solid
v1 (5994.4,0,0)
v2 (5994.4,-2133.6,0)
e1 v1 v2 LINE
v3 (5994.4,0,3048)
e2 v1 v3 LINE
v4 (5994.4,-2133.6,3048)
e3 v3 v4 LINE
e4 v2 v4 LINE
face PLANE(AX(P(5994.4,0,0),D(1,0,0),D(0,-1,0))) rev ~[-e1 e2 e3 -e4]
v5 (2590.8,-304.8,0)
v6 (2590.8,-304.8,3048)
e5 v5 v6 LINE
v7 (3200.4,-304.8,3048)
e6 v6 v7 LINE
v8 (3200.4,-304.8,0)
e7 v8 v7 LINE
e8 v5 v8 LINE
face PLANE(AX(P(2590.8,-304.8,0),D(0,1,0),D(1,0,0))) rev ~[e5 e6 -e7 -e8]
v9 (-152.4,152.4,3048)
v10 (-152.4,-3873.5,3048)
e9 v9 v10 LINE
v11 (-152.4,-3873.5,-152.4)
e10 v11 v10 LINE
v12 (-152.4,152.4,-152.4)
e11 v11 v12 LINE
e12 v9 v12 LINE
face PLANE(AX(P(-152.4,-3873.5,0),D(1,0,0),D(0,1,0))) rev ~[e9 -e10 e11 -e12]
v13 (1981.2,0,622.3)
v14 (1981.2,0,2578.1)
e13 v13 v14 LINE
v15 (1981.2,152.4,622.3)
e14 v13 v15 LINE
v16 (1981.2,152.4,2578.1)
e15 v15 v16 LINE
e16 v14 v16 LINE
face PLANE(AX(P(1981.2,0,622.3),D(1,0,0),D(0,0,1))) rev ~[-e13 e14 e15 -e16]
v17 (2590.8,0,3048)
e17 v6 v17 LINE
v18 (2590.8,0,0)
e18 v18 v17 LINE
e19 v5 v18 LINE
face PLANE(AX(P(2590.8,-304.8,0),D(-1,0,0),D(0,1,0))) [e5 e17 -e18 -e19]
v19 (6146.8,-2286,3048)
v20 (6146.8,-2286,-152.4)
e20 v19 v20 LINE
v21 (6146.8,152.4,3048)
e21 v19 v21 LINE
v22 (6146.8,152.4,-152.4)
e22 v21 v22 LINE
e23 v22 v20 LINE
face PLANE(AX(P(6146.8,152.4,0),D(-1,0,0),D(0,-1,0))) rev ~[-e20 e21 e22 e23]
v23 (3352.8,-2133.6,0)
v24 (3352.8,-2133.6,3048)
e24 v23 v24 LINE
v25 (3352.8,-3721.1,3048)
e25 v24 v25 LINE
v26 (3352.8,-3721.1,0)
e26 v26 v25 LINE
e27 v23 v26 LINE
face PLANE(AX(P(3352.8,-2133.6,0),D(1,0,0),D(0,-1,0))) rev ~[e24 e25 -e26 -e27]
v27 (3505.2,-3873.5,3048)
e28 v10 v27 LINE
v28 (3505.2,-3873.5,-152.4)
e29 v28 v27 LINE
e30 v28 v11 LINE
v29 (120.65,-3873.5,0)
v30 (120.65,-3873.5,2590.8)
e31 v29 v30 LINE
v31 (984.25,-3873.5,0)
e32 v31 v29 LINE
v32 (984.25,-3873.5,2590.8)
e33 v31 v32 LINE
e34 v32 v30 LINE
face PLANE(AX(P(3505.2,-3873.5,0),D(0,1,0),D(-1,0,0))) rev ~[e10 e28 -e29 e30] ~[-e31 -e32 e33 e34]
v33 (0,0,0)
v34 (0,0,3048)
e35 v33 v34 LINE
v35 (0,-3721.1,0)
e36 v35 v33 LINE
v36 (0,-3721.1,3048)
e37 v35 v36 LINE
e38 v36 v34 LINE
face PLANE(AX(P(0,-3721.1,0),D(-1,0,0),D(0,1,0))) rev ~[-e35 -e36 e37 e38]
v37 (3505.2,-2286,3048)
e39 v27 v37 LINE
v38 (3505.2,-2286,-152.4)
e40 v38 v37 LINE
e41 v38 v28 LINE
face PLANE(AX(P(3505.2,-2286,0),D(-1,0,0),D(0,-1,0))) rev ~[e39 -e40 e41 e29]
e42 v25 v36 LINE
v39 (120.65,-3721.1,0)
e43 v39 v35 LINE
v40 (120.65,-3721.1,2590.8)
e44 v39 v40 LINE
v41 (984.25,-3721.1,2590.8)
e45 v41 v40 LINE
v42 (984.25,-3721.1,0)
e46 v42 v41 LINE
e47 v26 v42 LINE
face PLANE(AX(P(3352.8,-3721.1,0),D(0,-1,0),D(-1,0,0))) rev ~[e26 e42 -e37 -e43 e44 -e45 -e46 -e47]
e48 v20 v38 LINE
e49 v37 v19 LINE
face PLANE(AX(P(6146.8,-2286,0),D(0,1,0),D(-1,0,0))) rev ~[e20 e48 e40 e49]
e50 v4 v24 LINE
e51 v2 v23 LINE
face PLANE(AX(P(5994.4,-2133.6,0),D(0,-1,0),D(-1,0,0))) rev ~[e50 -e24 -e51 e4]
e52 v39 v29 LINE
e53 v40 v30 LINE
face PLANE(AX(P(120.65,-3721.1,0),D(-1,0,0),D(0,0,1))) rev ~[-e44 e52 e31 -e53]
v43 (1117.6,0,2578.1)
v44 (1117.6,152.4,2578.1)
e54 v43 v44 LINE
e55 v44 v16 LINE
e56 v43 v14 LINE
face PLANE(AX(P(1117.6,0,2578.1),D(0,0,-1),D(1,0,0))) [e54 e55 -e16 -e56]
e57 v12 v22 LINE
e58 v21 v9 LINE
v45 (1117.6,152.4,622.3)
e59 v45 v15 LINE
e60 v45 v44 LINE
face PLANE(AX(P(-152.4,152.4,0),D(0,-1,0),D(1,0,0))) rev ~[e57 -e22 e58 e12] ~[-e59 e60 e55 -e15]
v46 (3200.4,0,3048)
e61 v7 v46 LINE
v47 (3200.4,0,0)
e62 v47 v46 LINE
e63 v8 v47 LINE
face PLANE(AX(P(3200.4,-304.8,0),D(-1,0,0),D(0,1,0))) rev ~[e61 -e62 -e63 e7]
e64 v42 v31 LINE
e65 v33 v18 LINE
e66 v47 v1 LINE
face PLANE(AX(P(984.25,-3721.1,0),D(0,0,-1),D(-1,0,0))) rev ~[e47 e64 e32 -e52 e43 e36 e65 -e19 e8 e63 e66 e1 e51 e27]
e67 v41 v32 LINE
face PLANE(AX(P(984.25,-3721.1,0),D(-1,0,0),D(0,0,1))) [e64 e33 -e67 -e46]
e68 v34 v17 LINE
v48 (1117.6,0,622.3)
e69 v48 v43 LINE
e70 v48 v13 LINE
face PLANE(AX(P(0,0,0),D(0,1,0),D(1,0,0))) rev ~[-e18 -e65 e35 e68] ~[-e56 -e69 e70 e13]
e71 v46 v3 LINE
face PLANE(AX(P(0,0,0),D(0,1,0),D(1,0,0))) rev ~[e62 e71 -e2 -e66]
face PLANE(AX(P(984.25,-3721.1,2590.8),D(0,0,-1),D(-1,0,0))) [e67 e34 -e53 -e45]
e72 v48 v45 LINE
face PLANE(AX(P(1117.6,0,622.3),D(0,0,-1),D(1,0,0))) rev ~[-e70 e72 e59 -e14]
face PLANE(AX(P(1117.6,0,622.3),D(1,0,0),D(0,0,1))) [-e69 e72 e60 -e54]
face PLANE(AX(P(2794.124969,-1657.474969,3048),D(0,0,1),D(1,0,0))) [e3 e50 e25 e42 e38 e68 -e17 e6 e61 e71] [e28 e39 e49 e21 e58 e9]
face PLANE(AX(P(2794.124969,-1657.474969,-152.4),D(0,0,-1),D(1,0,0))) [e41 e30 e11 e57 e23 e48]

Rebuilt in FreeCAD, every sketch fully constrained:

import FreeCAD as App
import Part
import Sketcher

V = App.Vector
Q = App.Units.Quantity

doc = App.newDocument("Part")
params = doc.addObject("Spreadsheet::Sheet", "Params")
for row, (alias, value) in enumerate([
    ("sketch1_width", "248 in"),
    ("sketch1_width2", "144 in"),
    ("sketch1_width3", "132 in"),
    ("sketch1_height", "96 in"),
    ("sketch1_height2", "84 in"),
    ("pad1_length", "120 in"),
    ("sketch2_width", "248 in"),
    ("sketch2_width2", "104 in"),
    ("sketch2_height", "96 in"),
    ("sketch2_height2", "158.5 in"),
    ("pad2_length", "6 in"),
    ("sketch3_width", "34 in"),
    ("sketch3_height", "102 in"),
    ("sketch4_width", "34 in"),
    ("sketch4_height", "77 in"),
    ("sketch5_width", "24 in"),
    ("sketch5_height", "12 in"),
    ("pad3_length", "120 in"),
], start=1):
    params.set(f"A{row}", alias)
    params.set(f"B{row}", "=" + value)
    params.setAlias(f"B{row}", alias)

body = doc.addObject("PartDesign::Body", "Body")

sketch1 = doc.addObject("Sketcher::SketchObject", "Sketch")
body.addObject(sketch1)
sketch1.AttachmentSupport = (doc.XY_Plane, [""])
sketch1.MapMode = "FlatFace"
sketch1.addGeometry(Part.LineSegment(V(6146.8, -2286, 0), V(6146.8, 152.4, 0)), False)
sketch1.addGeometry(Part.LineSegment(V(6146.8, 152.4, 0), V(-152.4, 152.4, 0)), False)
sketch1.addGeometry(Part.LineSegment(V(-152.4, 152.4, 0), V(-152.4, -3873.5, 0)), False)
sketch1.addGeometry(Part.LineSegment(V(-152.4, -3873.5, 0), V(3505.2, -3873.5, 0)), False)
sketch1.addGeometry(Part.LineSegment(V(3505.2, -3873.5, 0), V(3505.2, -2286, 0)), False)
sketch1.addGeometry(Part.LineSegment(V(3505.2, -2286, 0), V(6146.8, -2286, 0)), False)
sketch1.addGeometry(Part.LineSegment(V(3352.8, -3721.1, 0), V(0, -3721.1, 0)), False)
sketch1.addGeometry(Part.LineSegment(V(0, -3721.1, 0), V(0, 0, 0)), False)
sketch1.addGeometry(Part.LineSegment(V(0, 0, 0), V(5994.4, 0, 0)), False)
sketch1.addGeometry(Part.LineSegment(V(5994.4, 0, 0), V(5994.4, -2133.6, 0)), False)
sketch1.addGeometry(Part.LineSegment(V(5994.4, -2133.6, 0), V(3352.8, -2133.6, 0)), False)
sketch1.addGeometry(Part.LineSegment(V(3352.8, -2133.6, 0), V(3352.8, -3721.1, 0)), False)
sketch1.addConstraint(Sketcher.Constraint("Coincident", 0, 2, 1, 1))
sketch1.addConstraint(Sketcher.Constraint("Coincident", 1, 2, 2, 1))
sketch1.addConstraint(Sketcher.Constraint("Coincident", 2, 2, 3, 1))
sketch1.addConstraint(Sketcher.Constraint("Coincident", 3, 2, 4, 1))
sketch1.addConstraint(Sketcher.Constraint("Coincident", 4, 2, 5, 1))
sketch1.addConstraint(Sketcher.Constraint("Coincident", 5, 2, 0, 1))
sketch1.addConstraint(Sketcher.Constraint("Coincident", 6, 2, 7, 1))
sketch1.addConstraint(Sketcher.Constraint("Coincident", 7, 2, 8, 1))
sketch1.addConstraint(Sketcher.Constraint("Coincident", 8, 2, 9, 1))
sketch1.addConstraint(Sketcher.Constraint("Coincident", 9, 2, 10, 1))
sketch1.addConstraint(Sketcher.Constraint("Coincident", 10, 2, 11, 1))
sketch1.addConstraint(Sketcher.Constraint("Coincident", 11, 2, 6, 1))
sketch1.addConstraint(Sketcher.Constraint("Vertical", 0))
sketch1.addConstraint(Sketcher.Constraint("Horizontal", 1))
sketch1.addConstraint(Sketcher.Constraint("Vertical", 2))
sketch1.addConstraint(Sketcher.Constraint("Horizontal", 3))
sketch1.addConstraint(Sketcher.Constraint("Vertical", 4))
sketch1.addConstraint(Sketcher.Constraint("Horizontal", 5))
sketch1.addConstraint(Sketcher.Constraint("Horizontal", 6))
sketch1.addConstraint(Sketcher.Constraint("Vertical", 7))
sketch1.addConstraint(Sketcher.Constraint("Horizontal", 8))
sketch1.addConstraint(Sketcher.Constraint("Vertical", 9))
sketch1.addConstraint(Sketcher.Constraint("Horizontal", 10))
sketch1.addConstraint(Sketcher.Constraint("Vertical", 11))
sketch1.addConstraint(Sketcher.Constraint("Coincident", 7, 2, -1, 1))
sketch1.addConstraint(Sketcher.Constraint("Equal", 5, 10))
sketch1.addConstraint(Sketcher.Constraint("Equal", 4, 11))
sketch1.addConstraint(Sketcher.Constraint("DistanceX", 1, 2, 1, 1, Q("248 in")))
sketch1.addConstraint(Sketcher.Constraint("DistanceX", 3, 1, 3, 2, Q("144 in")))
sketch1.addConstraint(Sketcher.Constraint("DistanceX", 6, 2, 6, 1, Q("132 in")))
sketch1.addConstraint(Sketcher.Constraint("DistanceY", 0, 1, 0, 2, Q("96 in")))
sketch1.addConstraint(Sketcher.Constraint("DistanceY", 9, 2, 9, 1, Q("84 in")))
sketch1.addConstraint(Sketcher.Constraint("DistanceY", 2, 2, 2, 1, Q("158.5 in")))
sketch1.addConstraint(Sketcher.Constraint("DistanceX", -1, 1, 0, 2, Q("242 in")))
sketch1.addConstraint(Sketcher.Constraint("DistanceY", -1, 1, 0, 2, Q("6 in")))
sketch1.setExpression("Constraints[27]", "Params.sketch1_width")
sketch1.setExpression("Constraints[28]", "Params.sketch1_width2")
sketch1.setExpression("Constraints[29]", "Params.sketch1_width3")
sketch1.setExpression("Constraints[30]", "Params.sketch1_height")
sketch1.setExpression("Constraints[31]", "Params.sketch1_height2")
pad1 = doc.addObject("PartDesign::Pad", "Pad")
body.addObject(pad1)
pad1.Profile = sketch1
pad1.setExpression("Length", "Params.pad1_length")

sketch2 = doc.addObject("Sketcher::SketchObject", "Sketch001")
body.addObject(sketch2)
sketch2.AttachmentSupport = (doc.XY_Plane, [""])
sketch2.MapMode = "FlatFace"
sketch2.addGeometry(Part.LineSegment(V(-152.4, -3873.5, 0), V(-152.4, 152.4, 0)), False)
sketch2.addGeometry(Part.LineSegment(V(-152.4, 152.4, 0), V(6146.8, 152.4, 0)), False)
sketch2.addGeometry(Part.LineSegment(V(6146.8, 152.4, 0), V(6146.8, -2286, 0)), False)
sketch2.addGeometry(Part.LineSegment(V(6146.8, -2286, 0), V(3505.2, -2286, 0)), False)
sketch2.addGeometry(Part.LineSegment(V(3505.2, -2286, 0), V(3505.2, -3873.5, 0)), False)
sketch2.addGeometry(Part.LineSegment(V(3505.2, -3873.5, 0), V(-152.4, -3873.5, 0)), False)
sketch2.addConstraint(Sketcher.Constraint("Coincident", 0, 2, 1, 1))
sketch2.addConstraint(Sketcher.Constraint("Coincident", 1, 2, 2, 1))
sketch2.addConstraint(Sketcher.Constraint("Coincident", 2, 2, 3, 1))
sketch2.addConstraint(Sketcher.Constraint("Coincident", 3, 2, 4, 1))
sketch2.addConstraint(Sketcher.Constraint("Coincident", 4, 2, 5, 1))
sketch2.addConstraint(Sketcher.Constraint("Coincident", 5, 2, 0, 1))
sketch2.addConstraint(Sketcher.Constraint("Vertical", 0))
sketch2.addConstraint(Sketcher.Constraint("Horizontal", 1))
sketch2.addConstraint(Sketcher.Constraint("Vertical", 2))
sketch2.addConstraint(Sketcher.Constraint("Horizontal", 3))
sketch2.addConstraint(Sketcher.Constraint("Vertical", 4))
sketch2.addConstraint(Sketcher.Constraint("Horizontal", 5))
sketch2.addConstraint(Sketcher.Constraint("DistanceX", 1, 1, 1, 2, Q("248 in")))
sketch2.addConstraint(Sketcher.Constraint("DistanceX", 3, 2, 3, 1, Q("104 in")))
sketch2.addConstraint(Sketcher.Constraint("DistanceY", 2, 2, 2, 1, Q("96 in")))
sketch2.addConstraint(Sketcher.Constraint("DistanceY", 0, 1, 0, 2, Q("158.5 in")))
sketch2.addConstraint(Sketcher.Constraint("DistanceX", 0, 2, -1, 1, Q("6 in")))
sketch2.addConstraint(Sketcher.Constraint("DistanceY", -1, 1, 0, 2, Q("6 in")))
sketch2.setExpression("Constraints[12]", "Params.sketch2_width")
sketch2.setExpression("Constraints[13]", "Params.sketch2_width2")
sketch2.setExpression("Constraints[14]", "Params.sketch2_height")
sketch2.setExpression("Constraints[15]", "Params.sketch2_height2")
pad2 = doc.addObject("PartDesign::Pad", "Pad001")
body.addObject(pad2)
pad2.Profile = sketch2
pad2.setExpression("Length", "Params.pad2_length")
pad2.Reversed = True

sketch3 = doc.addObject("Sketcher::SketchObject", "Sketch002")
body.addObject(sketch3)
sketch3.AttachmentSupport = (doc.XZ_Plane, [""])
sketch3.MapMode = "FlatFace"
sketch3.AttachmentOffset = App.Placement(V(0, 0, 146.5 * 25.4), App.Rotation())
sketch3.addGeometry(Part.LineSegment(V(984.25, 2590.8, 0), V(984.25, 0, 0)), False)
sketch3.addGeometry(Part.LineSegment(V(984.25, 0, 0), V(120.65, 0, 0)), False)
sketch3.addGeometry(Part.LineSegment(V(120.65, 0, 0), V(120.65, 2590.8, 0)), False)
sketch3.addGeometry(Part.LineSegment(V(120.65, 2590.8, 0), V(984.25, 2590.8, 0)), False)
sketch3.addConstraint(Sketcher.Constraint("Coincident", 0, 2, 1, 1))
sketch3.addConstraint(Sketcher.Constraint("Coincident", 1, 2, 2, 1))
sketch3.addConstraint(Sketcher.Constraint("Coincident", 2, 2, 3, 1))
sketch3.addConstraint(Sketcher.Constraint("Coincident", 3, 2, 0, 1))
sketch3.addConstraint(Sketcher.Constraint("Vertical", 0))
sketch3.addConstraint(Sketcher.Constraint("Horizontal", 1))
sketch3.addConstraint(Sketcher.Constraint("Vertical", 2))
sketch3.addConstraint(Sketcher.Constraint("Horizontal", 3))
sketch3.addConstraint(Sketcher.Constraint("PointOnObject", 0, 2, -1))
sketch3.addConstraint(Sketcher.Constraint("DistanceX", 1, 2, 1, 1, Q("34 in")))
sketch3.addConstraint(Sketcher.Constraint("DistanceY", 0, 2, 0, 1, Q("102 in")))
sketch3.addConstraint(Sketcher.Constraint("DistanceX", -1, 1, 0, 2, Q("38.75 in")))
sketch3.setExpression("Constraints[9]", "Params.sketch3_width")
sketch3.setExpression("Constraints[10]", "Params.sketch3_height")
pocket1 = doc.addObject("PartDesign::Pocket", "Pocket")
body.addObject(pocket1)
pocket1.Profile = sketch3
pocket1.Type = "ThroughAll"
pocket1.Reversed = True

sketch4 = doc.addObject("Sketcher::SketchObject", "Sketch003")
body.addObject(sketch4)
sketch4.AttachmentSupport = (doc.XZ_Plane, [""])
sketch4.MapMode = "FlatFace"
sketch4.addGeometry(Part.LineSegment(V(1117.6, 2578.1, 0), V(1117.6, 622.3, 0)), False)
sketch4.addGeometry(Part.LineSegment(V(1117.6, 622.3, 0), V(1981.2, 622.3, 0)), False)
sketch4.addGeometry(Part.LineSegment(V(1981.2, 622.3, 0), V(1981.2, 2578.1, 0)), False)
sketch4.addGeometry(Part.LineSegment(V(1981.2, 2578.1, 0), V(1117.6, 2578.1, 0)), False)
sketch4.addConstraint(Sketcher.Constraint("Coincident", 0, 2, 1, 1))
sketch4.addConstraint(Sketcher.Constraint("Coincident", 1, 2, 2, 1))
sketch4.addConstraint(Sketcher.Constraint("Coincident", 2, 2, 3, 1))
sketch4.addConstraint(Sketcher.Constraint("Coincident", 3, 2, 0, 1))
sketch4.addConstraint(Sketcher.Constraint("Vertical", 0))
sketch4.addConstraint(Sketcher.Constraint("Horizontal", 1))
sketch4.addConstraint(Sketcher.Constraint("Vertical", 2))
sketch4.addConstraint(Sketcher.Constraint("Horizontal", 3))
sketch4.addConstraint(Sketcher.Constraint("DistanceX", 1, 1, 1, 2, Q("34 in")))
sketch4.addConstraint(Sketcher.Constraint("DistanceY", 0, 2, 0, 1, Q("77 in")))
sketch4.addConstraint(Sketcher.Constraint("DistanceX", -1, 1, 0, 2, Q("44 in")))
sketch4.addConstraint(Sketcher.Constraint("DistanceY", -1, 1, 0, 2, Q("24.5 in")))
sketch4.setExpression("Constraints[8]", "Params.sketch4_width")
sketch4.setExpression("Constraints[9]", "Params.sketch4_height")
pocket2 = doc.addObject("PartDesign::Pocket", "Pocket001")
body.addObject(pocket2)
pocket2.Profile = sketch4
pocket2.Type = "ThroughAll"

sketch5 = doc.addObject("Sketcher::SketchObject", "Sketch004")
body.addObject(sketch5)
sketch5.AttachmentSupport = (doc.XY_Plane, [""])
sketch5.MapMode = "FlatFace"
sketch5.addGeometry(Part.LineSegment(V(2590.8, 0, 0), V(2590.8, -304.8, 0)), False)
sketch5.addGeometry(Part.LineSegment(V(2590.8, -304.8, 0), V(3200.4, -304.8, 0)), False)
sketch5.addGeometry(Part.LineSegment(V(3200.4, -304.8, 0), V(3200.4, 0, 0)), False)
sketch5.addGeometry(Part.LineSegment(V(3200.4, 0, 0), V(2590.8, 0, 0)), False)
sketch5.addConstraint(Sketcher.Constraint("Coincident", 0, 2, 1, 1))
sketch5.addConstraint(Sketcher.Constraint("Coincident", 1, 2, 2, 1))
sketch5.addConstraint(Sketcher.Constraint("Coincident", 2, 2, 3, 1))
sketch5.addConstraint(Sketcher.Constraint("Coincident", 3, 2, 0, 1))
sketch5.addConstraint(Sketcher.Constraint("Vertical", 0))
sketch5.addConstraint(Sketcher.Constraint("Horizontal", 1))
sketch5.addConstraint(Sketcher.Constraint("Vertical", 2))
sketch5.addConstraint(Sketcher.Constraint("Horizontal", 3))
sketch5.addConstraint(Sketcher.Constraint("PointOnObject", 2, 2, -1))
sketch5.addConstraint(Sketcher.Constraint("DistanceX", 1, 1, 1, 2, Q("24 in")))
sketch5.addConstraint(Sketcher.Constraint("DistanceY", 0, 2, 0, 1, Q("12 in")))
sketch5.addConstraint(Sketcher.Constraint("DistanceX", -1, 1, 0, 2, Q("102 in")))
sketch5.setExpression("Constraints[9]", "Params.sketch5_width")
sketch5.setExpression("Constraints[10]", "Params.sketch5_height")
pad3 = doc.addObject("PartDesign::Pad", "Pad002")
body.addObject(pad3)
pad3.Profile = sketch5
pad3.setExpression("Length", "Params.pad3_length")

doc.recompute()
